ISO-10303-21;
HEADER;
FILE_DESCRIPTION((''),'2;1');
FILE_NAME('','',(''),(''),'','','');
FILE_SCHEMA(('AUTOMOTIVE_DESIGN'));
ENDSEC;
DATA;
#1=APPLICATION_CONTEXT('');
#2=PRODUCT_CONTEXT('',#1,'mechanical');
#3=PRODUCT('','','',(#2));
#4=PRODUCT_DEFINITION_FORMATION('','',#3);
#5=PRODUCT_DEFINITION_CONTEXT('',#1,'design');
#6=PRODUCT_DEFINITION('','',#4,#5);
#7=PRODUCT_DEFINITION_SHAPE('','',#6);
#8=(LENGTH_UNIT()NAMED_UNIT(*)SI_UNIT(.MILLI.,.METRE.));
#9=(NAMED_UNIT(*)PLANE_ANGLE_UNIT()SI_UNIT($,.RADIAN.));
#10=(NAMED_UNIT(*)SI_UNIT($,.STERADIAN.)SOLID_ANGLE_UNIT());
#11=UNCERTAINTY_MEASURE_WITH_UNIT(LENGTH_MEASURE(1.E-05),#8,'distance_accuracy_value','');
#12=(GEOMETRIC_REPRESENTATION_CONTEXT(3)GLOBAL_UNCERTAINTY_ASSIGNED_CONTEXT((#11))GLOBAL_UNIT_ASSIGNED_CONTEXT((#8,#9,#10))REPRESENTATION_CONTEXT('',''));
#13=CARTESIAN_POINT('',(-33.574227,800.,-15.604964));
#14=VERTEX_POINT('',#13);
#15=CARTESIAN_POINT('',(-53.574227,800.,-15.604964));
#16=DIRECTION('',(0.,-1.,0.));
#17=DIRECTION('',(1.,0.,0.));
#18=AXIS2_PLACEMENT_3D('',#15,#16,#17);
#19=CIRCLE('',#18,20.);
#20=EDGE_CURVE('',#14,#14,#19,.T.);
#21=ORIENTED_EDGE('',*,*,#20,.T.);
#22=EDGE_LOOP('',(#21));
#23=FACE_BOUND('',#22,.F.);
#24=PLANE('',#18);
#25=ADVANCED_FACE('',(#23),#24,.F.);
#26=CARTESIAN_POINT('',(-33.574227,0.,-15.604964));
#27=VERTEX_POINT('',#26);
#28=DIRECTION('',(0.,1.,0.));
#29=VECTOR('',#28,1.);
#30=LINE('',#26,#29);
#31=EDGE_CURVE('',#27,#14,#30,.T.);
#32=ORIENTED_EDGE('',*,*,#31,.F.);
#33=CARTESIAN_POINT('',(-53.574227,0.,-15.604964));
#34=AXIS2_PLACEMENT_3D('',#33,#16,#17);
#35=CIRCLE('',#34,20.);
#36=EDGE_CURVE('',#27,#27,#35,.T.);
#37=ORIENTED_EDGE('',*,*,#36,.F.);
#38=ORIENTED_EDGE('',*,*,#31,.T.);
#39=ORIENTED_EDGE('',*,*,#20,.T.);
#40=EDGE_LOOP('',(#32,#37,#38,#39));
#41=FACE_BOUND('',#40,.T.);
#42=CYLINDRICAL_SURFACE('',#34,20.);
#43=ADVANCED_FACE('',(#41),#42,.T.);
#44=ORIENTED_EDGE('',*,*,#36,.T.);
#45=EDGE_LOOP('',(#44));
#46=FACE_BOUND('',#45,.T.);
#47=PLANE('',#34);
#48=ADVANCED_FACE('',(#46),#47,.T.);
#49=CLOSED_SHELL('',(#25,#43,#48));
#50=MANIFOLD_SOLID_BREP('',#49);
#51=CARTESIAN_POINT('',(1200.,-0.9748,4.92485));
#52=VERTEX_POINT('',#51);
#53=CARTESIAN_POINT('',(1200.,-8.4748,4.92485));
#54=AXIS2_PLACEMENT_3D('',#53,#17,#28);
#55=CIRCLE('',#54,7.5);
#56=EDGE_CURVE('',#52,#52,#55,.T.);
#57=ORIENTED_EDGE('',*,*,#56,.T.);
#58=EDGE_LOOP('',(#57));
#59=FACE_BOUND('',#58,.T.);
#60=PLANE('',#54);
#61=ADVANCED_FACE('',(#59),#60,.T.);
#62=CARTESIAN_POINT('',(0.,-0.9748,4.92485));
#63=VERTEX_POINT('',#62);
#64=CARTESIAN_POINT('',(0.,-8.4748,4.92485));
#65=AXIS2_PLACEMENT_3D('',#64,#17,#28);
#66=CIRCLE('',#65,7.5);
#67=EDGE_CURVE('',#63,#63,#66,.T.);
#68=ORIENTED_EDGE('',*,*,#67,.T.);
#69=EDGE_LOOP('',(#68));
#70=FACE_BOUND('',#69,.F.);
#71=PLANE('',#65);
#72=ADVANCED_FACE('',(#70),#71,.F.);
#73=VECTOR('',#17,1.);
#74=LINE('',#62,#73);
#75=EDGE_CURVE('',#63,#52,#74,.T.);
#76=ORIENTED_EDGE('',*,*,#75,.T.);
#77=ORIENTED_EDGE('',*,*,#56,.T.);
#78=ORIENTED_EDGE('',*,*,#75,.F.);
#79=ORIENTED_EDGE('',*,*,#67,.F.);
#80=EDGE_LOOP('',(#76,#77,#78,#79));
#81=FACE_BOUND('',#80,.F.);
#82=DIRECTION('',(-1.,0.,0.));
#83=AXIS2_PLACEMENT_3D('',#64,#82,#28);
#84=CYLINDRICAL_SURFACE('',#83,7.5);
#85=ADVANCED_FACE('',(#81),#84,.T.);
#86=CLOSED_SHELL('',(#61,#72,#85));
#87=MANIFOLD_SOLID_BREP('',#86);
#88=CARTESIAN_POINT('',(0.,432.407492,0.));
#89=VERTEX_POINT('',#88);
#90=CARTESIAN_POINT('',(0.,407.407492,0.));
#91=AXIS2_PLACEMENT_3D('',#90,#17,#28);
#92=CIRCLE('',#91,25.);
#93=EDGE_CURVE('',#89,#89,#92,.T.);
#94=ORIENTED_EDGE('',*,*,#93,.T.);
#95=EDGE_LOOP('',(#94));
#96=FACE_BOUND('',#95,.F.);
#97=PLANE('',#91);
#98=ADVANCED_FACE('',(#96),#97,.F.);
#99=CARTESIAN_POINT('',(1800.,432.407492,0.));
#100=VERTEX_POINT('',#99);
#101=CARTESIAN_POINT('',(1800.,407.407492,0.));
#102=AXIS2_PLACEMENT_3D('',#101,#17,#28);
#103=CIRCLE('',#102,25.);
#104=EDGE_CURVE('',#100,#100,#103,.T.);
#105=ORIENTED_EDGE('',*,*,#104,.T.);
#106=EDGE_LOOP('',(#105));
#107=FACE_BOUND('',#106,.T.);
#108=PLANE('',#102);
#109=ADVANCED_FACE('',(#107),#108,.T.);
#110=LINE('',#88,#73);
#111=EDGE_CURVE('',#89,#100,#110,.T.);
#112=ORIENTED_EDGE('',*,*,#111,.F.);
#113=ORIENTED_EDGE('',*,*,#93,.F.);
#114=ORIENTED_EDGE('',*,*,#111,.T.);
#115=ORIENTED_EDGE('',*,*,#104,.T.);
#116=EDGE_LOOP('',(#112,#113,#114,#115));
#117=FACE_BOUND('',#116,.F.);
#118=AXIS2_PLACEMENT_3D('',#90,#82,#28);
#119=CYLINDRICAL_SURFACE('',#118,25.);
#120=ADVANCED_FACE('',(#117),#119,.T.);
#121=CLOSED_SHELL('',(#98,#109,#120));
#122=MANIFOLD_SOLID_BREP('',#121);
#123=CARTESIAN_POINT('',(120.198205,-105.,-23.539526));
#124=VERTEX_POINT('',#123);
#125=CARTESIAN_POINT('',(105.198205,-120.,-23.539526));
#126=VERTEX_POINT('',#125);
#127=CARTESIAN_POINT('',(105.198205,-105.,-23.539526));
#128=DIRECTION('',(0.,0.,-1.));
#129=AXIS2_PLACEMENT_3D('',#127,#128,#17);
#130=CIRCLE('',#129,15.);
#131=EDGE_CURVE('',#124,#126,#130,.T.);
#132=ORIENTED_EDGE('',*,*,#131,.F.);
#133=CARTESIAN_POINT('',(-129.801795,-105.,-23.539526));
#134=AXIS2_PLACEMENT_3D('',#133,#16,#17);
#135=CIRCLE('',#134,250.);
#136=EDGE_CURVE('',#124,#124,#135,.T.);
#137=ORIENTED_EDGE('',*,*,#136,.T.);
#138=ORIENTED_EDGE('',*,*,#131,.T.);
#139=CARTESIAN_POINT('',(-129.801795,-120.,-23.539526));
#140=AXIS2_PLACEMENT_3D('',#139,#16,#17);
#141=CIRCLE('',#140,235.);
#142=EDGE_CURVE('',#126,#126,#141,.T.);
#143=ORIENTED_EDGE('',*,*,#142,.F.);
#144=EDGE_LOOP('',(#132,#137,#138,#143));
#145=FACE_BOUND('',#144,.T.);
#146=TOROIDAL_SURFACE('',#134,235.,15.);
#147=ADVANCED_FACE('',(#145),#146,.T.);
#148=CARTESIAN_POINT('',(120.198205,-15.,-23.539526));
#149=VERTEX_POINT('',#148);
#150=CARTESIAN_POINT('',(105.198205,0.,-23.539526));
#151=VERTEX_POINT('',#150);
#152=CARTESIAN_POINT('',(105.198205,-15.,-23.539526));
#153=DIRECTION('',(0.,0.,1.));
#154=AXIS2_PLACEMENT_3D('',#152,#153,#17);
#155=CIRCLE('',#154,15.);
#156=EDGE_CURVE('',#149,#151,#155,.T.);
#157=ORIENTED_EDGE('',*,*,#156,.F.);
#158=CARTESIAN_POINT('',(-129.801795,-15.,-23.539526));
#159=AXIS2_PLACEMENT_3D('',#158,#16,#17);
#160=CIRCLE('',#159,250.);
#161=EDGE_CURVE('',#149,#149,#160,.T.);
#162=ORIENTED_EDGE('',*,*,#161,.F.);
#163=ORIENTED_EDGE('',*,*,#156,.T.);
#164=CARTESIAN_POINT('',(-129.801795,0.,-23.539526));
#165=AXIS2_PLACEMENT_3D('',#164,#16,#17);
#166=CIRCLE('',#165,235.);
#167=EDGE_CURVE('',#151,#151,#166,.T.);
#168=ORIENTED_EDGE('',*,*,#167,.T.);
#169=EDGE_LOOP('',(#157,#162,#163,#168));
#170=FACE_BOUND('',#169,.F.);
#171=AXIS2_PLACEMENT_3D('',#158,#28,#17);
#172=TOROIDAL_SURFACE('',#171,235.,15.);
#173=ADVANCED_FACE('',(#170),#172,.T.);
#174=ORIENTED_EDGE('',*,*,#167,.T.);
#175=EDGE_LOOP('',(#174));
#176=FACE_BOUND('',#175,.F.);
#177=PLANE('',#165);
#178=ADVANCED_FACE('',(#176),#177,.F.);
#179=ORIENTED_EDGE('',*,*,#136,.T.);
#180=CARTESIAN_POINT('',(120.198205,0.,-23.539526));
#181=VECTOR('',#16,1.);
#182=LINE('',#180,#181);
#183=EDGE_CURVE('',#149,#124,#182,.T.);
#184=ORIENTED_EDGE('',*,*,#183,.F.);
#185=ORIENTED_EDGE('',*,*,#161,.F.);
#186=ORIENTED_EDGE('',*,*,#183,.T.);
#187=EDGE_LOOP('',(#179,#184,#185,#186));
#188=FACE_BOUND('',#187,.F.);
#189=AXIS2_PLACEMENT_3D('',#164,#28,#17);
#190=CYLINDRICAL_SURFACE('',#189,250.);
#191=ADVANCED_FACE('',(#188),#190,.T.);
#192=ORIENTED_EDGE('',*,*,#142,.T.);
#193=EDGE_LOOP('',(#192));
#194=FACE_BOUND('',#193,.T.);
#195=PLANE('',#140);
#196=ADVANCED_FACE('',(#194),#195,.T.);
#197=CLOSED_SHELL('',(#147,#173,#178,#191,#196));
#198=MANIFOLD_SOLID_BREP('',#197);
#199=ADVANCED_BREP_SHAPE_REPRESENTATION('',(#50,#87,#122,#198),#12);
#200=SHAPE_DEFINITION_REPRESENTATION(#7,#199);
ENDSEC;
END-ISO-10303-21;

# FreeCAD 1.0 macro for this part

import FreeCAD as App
import Part
import Sketcher
from FreeCAD import Vector

doc = App.newDocument("Part")
body = doc.addObject("PartDesign::Body", "Body")

# Sketch on XZ plane
sketch1 = body.newObject("Sketcher::SketchObject", "Sketch")
sketch1.AttachmentSupport = (doc.getObject("XZ_Plane"), [""])
sketch1.MapMode = "FlatFace"
sketch1.addGeometry(Part.Circle(Vector(-130, -24, 0), Vector(0, 0, 1), 250), False)
sketch1.addConstraint([
    Sketcher.Constraint("Diameter", 0, 500.0),
    Sketcher.Constraint("DistanceX", 0, 3, -1, 1, 129.801795),
    Sketcher.Constraint("DistanceY", 0, 3, -1, 1, 23.539526),
])
pad1 = body.newObject("PartDesign::Pad", "Pad")
pad1.Profile = sketch1
pad1.Length = 120
doc.recompute()

fillet = body.newObject("PartDesign::Fillet", "Fillet")
fillet.Base = (pad1, ["Edge1"])
fillet.UseAllEdges = True
fillet.Radius = 15
body2 = doc.addObject("PartDesign::Body", "Body001")

# Sketch on XZ plane
sketch2 = body2.newObject("Sketcher::SketchObject", "Sketch001")
sketch2.AttachmentSupport = (doc.getObject("XZ_Plane001"), [""])
sketch2.MapMode = "FlatFace"
sketch2.addGeometry(Part.Circle(Vector(-54, -16, 0), Vector(0, 0, 1), 20), False)
sketch2.addConstraint([
    Sketcher.Constraint("Diameter", 0, 40.0),
    Sketcher.Constraint("DistanceX", 0, 3, -1, 1, 53.574227),
    Sketcher.Constraint("DistanceY", 0, 3, -1, 1, 15.604964),
])
pad2 = body2.newObject("PartDesign::Pad", "Pad001")
pad2.Profile = sketch2
pad2.Length = 800
pad2.Reversed = True
body3 = doc.addObject("PartDesign::Body", "Body002")

# Sketch on YZ plane
sketch3 = body3.newObject("Sketcher::SketchObject", "Sketch002")
sketch3.AttachmentSupport = (doc.getObject("YZ_Plane002"), [""])
sketch3.MapMode = "FlatFace"
sketch3.addGeometry(Part.Circle(Vector(-8, 5, 0), Vector(0, 0, 1), 8), False)
sketch3.addConstraint([
    Sketcher.Constraint("Diameter", 0, 15.0),
    Sketcher.Constraint("DistanceX", 0, 3, -1, 1, 8.4748),
    Sketcher.Constraint("DistanceY", -1, 1, 0, 3, 4.92485),
])
pad3 = body3.newObject("PartDesign::Pad", "Pad002")
pad3.Profile = sketch3
pad3.Length = 1200
body4 = doc.addObject("PartDesign::Body", "Body003")

# Sketch on YZ plane
sketch4 = body4.newObject("Sketcher::SketchObject", "Sketch003")
sketch4.AttachmentSupport = (doc.getObject("YZ_Plane003"), [""])
sketch4.MapMode = "FlatFace"
sketch4.addGeometry(Part.Circle(Vector(407, 0, 0), Vector(0, 0, 1), 25), False)
sketch4.addConstraint([
    Sketcher.Constraint("PointOnObject", 0, 3, -1),
    Sketcher.Constraint("Diameter", 0, 50.0),
    Sketcher.Constraint("DistanceX", -1, 1, 0, 3, 407.407492),
])
pad4 = body4.newObject("PartDesign::Pad", "Pad003")
pad4.Profile = sketch4
pad4.Length = 1800

doc.recompute()
